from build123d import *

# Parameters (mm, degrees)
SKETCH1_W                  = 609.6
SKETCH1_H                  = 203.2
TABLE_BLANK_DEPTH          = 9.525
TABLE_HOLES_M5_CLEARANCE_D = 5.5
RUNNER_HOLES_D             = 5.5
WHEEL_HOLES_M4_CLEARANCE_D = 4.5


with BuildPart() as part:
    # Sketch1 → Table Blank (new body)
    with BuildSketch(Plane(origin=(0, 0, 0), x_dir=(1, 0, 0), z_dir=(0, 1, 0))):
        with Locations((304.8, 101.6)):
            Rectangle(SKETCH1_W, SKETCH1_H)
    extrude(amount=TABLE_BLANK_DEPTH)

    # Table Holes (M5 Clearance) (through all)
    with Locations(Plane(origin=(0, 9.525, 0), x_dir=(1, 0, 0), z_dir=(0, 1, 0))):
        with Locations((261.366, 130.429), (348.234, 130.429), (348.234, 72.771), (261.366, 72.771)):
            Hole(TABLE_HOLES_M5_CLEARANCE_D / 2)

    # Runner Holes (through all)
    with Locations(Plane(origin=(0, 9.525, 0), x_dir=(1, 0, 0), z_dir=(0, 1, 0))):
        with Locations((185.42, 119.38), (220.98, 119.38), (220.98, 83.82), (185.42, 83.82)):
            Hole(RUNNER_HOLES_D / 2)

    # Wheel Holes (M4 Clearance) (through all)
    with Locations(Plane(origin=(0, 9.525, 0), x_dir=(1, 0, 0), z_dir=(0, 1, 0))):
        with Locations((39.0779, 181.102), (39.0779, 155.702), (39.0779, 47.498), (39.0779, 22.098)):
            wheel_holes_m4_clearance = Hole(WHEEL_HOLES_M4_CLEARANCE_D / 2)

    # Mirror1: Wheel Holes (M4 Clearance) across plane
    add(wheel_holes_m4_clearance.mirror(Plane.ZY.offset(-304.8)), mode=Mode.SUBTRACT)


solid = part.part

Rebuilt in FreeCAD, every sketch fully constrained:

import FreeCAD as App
import Part
import Sketcher
from FreeCAD import Vector
Q = App.Units.Quantity

doc = App.newDocument("Part")
body = doc.addObject("PartDesign::Body", "Body")

sketch1 = body.newObject("Sketcher::SketchObject", "Sketch")
sketch1.AttachmentSupport = (doc.getObject("XZ_Plane"), [""])
sketch1.MapMode = "FlatFace"
sketch1.addGeometry(Part.LineSegment(Vector(0, -203, 0), Vector(0, 0, 0)), False)
sketch1.addGeometry(Part.LineSegment(Vector(0, 0, 0), Vector(610, 0, 0)), False)
sketch1.addGeometry(Part.LineSegment(Vector(610, 0, 0), Vector(610, -203, 0)), False)
sketch1.addGeometry(Part.LineSegment(Vector(610, -203, 0), Vector(0, -203, 0)), False)
sketch1.addConstraint(Sketcher.Constraint("Coincident", 0, 2, 1, 1))
sketch1.addConstraint(Sketcher.Constraint("Coincident", 1, 2, 2, 1))
sketch1.addConstraint(Sketcher.Constraint("Coincident", 2, 2, 3, 1))
sketch1.addConstraint(Sketcher.Constraint("Coincident", 3, 2, 0, 1))
sketch1.addConstraint(Sketcher.Constraint("Vertical", 0))
sketch1.addConstraint(Sketcher.Constraint("Horizontal", 1))
sketch1.addConstraint(Sketcher.Constraint("Vertical", 2))
sketch1.addConstraint(Sketcher.Constraint("Horizontal", 3))
sketch1.addConstraint(Sketcher.Constraint("Coincident", 0, 2, -1, 1))
sketch1.addConstraint(Sketcher.Constraint("DistanceX", 1, 1, 1, 2, Q("24 in")))
sketch1.addConstraint(Sketcher.Constraint("DistanceY", 0, 1, 0, 2, Q("8 in")))
pad1 = body.newObject("PartDesign::Pad", "Pad")
pad1.Profile = sketch1
pad1.Length = Q("0.375 in")
pad1.Reversed = True

sketch2 = body.newObject("Sketcher::SketchObject", "Sketch001")
sketch2.AttachmentSupport = (doc.getObject("XZ_Plane"), [""])
sketch2.MapMode = "FlatFace"
sketch2.AttachmentOffset = App.Placement(Vector(0, 0, -0.375 * 25.4), App.Rotation())
sketch2.addGeometry(Part.Circle(Vector(261.4, -130.4, 0), Vector(0, 0, 1), 2.8), False)
sketch2.addGeometry(Part.Circle(Vector(348.2, -130.4, 0), Vector(0, 0, 1), 2.8), False)
sketch2.addGeometry(Part.Circle(Vector(348.2, -72.8, 0), Vector(0, 0, 1), 2.8), False)
sketch2.addGeometry(Part.Circle(Vector(261.4, -72.8, 0), Vector(0, 0, 1), 2.8), False)
sketch2.addConstraint(Sketcher.Constraint("Equal", 0, 1))
sketch2.addConstraint(Sketcher.Constraint("Equal", 1, 2))
sketch2.addConstraint(Sketcher.Constraint("Equal", 2, 3))
sketch2.addConstraint(Sketcher.Constraint("Horizontal", 0, 3, 1, 3))
sketch2.addConstraint(Sketcher.Constraint("Horizontal", 2, 3, 3, 3))
sketch2.addConstraint(Sketcher.Constraint("Vertical", 1, 3, 2, 3))
sketch2.addConstraint(Sketcher.Constraint("Vertical", 0, 3, 3, 3))
sketch2.addConstraint(Sketcher.Constraint("Diameter", 0, 5.5))
sketch2.addConstraint(Sketcher.Constraint("DistanceX", -1, 1, 0, 3, Q("10.29 in")))
sketch2.addConstraint(Sketcher.Constraint("DistanceX", -1, 1, 1, 3, Q("13.71 in")))
sketch2.addConstraint(Sketcher.Constraint("DistanceY", 1, 3, 2, 3, Q("2.27 in")))
sketch2.addConstraint(Sketcher.Constraint("DistanceY", 0, 3, -1, 1, Q("5.135 in")))
doc.recompute()
hole = body.newObject("PartDesign::Hole", "Hole")
hole.Profile = sketch2
hole.ThreadType = "None"
hole.Diameter = 5.5
hole.DepthType = "ThroughAll"
hole.Reversed = True

sketch3 = body.newObject("Sketcher::SketchObject", "Sketch002")
sketch3.AttachmentSupport = (doc.getObject("XZ_Plane"), [""])
sketch3.MapMode = "FlatFace"
sketch3.AttachmentOffset = App.Placement(Vector(0, 0, -0.375 * 25.4), App.Rotation())
sketch3.addGeometry(Part.Circle(Vector(185.4, -119.4, 0), Vector(0, 0, 1), 2.8), False)
sketch3.addGeometry(Part.Circle(Vector(221, -119.4, 0), Vector(0, 0, 1), 2.8), False)
sketch3.addGeometry(Part.Circle(Vector(221, -83.8, 0), Vector(0, 0, 1), 2.8), False)
sketch3.addGeometry(Part.Circle(Vector(185.4, -83.8, 0), Vector(0, 0, 1), 2.8), False)
sketch3.addConstraint(Sketcher.Constraint("Equal", 0, 1))
sketch3.addConstraint(Sketcher.Constraint("Equal", 1, 2))
sketch3.addConstraint(Sketcher.Constraint("Equal", 2, 3))
sketch3.addConstraint(Sketcher.Constraint("Horizontal", 0, 3, 1, 3))
sketch3.addConstraint(Sketcher.Constraint("Horizontal", 2, 3, 3, 3))
sketch3.addConstraint(Sketcher.Constraint("Vertical", 1, 3, 2, 3))
sketch3.addConstraint(Sketcher.Constraint("Vertical", 0, 3, 3, 3))
sketch3.addConstraint(Sketcher.Constraint("DistanceX", -1, 1, 0, 3, Q("7.3 in")))
sketch3.addConstraint(Sketcher.Constraint("DistanceY", 0, 3, -1, 1, Q("4.7 in")))
sketch3.addConstraint(Sketcher.Constraint("DistanceX", -1, 1, 1, 3, Q("8.7 in")))
sketch3.addConstraint(Sketcher.Constraint("DistanceY", 2, 3, -1, 1, Q("3.3 in")))
sketch3.addConstraint(Sketcher.Constraint("Diameter", 0, 5.5))
doc.recompute()
hole2 = body.newObject("PartDesign::Hole", "Hole001")
hole2.Profile = sketch3
hole2.ThreadType = "None"
hole2.Diameter = 5.5
hole2.DepthType = "ThroughAll"
hole2.Reversed = True

sketch4 = body.newObject("Sketcher::SketchObject", "Sketch003")
sketch4.AttachmentSupport = (doc.getObject("XZ_Plane"), [""])
sketch4.MapMode = "FlatFace"
sketch4.AttachmentOffset = App.Placement(Vector(0, 0, -0.375 * 25.4), App.Rotation())
sketch4.addGeometry(Part.Circle(Vector(39.1, -181.1, 0), Vector(0, 0, 1), 2.2), False)
sketch4.addGeometry(Part.Circle(Vector(39.1, -155.7, 0), Vector(0, 0, 1), 2.2), False)
sketch4.addGeometry(Part.Circle(Vector(39.1, -47.5, 0), Vector(0, 0, 1), 2.2), False)
sketch4.addGeometry(Part.Circle(Vector(39.1, -22.1, 0), Vector(0, 0, 1), 2.2), False)
sketch4.addConstraint(Sketcher.Constraint("Equal", 0, 1))
sketch4.addConstraint(Sketcher.Constraint("Equal", 1, 2))
sketch4.addConstraint(Sketcher.Constraint("Equal", 2, 3))
sketch4.addConstraint(Sketcher.Constraint("Vertical", 0, 3, 1, 3))
sketch4.addConstraint(Sketcher.Constraint("Vertical", 1, 3, 2, 3))
sketch4.addConstraint(Sketcher.Constraint("Vertical", 2, 3, 3, 3))
sketch4.addConstraint(Sketcher.Constraint("DistanceY", 0, 3, 1, 3, Q("1 in")))
sketch4.addConstraint(Sketcher.Constraint("DistanceY", 2, 3, 3, 3, Q("1 in")))
sketch4.addConstraint(Sketcher.Constraint("Diameter", 0, 4.5))
sketch4.addConstraint(Sketcher.Constraint("DistanceY", 0, 3, -1, 1, Q("7.13 in")))
sketch4.addConstraint(Sketcher.Constraint("DistanceY", 2, 3, -1, 1, Q("1.87 in")))
sketch4.addConstraint(Sketcher.Constraint("DistanceX", -1, 1, 0, 3, Q("1.5385 in")))
doc.recompute()
hole3 = body.newObject("PartDesign::Hole", "Hole002")
hole3.Profile = sketch4
hole3.ThreadType = "None"
hole3.Diameter = 4.5
hole3.DepthType = "ThroughAll"
hole3.Reversed = True
doc.recompute()

datumplane = body.newObject("PartDesign::Plane", "DatumPlane")
datumplane.AttachmentSupport = (doc.getObject("YZ_Plane"), [""])
datumplane.MapMode = "FlatFace"
datumplane.AttachmentOffset = App.Placement(Vector(0, 0, 12 * 25.4), App.Rotation())
mirrored = body.newObject("PartDesign::Mirrored", "Mirrored")
mirrored.Originals = [hole3]
mirrored.MirrorPlane = (datumplane, [""])
body.Tip = mirrored

doc.recompute()
